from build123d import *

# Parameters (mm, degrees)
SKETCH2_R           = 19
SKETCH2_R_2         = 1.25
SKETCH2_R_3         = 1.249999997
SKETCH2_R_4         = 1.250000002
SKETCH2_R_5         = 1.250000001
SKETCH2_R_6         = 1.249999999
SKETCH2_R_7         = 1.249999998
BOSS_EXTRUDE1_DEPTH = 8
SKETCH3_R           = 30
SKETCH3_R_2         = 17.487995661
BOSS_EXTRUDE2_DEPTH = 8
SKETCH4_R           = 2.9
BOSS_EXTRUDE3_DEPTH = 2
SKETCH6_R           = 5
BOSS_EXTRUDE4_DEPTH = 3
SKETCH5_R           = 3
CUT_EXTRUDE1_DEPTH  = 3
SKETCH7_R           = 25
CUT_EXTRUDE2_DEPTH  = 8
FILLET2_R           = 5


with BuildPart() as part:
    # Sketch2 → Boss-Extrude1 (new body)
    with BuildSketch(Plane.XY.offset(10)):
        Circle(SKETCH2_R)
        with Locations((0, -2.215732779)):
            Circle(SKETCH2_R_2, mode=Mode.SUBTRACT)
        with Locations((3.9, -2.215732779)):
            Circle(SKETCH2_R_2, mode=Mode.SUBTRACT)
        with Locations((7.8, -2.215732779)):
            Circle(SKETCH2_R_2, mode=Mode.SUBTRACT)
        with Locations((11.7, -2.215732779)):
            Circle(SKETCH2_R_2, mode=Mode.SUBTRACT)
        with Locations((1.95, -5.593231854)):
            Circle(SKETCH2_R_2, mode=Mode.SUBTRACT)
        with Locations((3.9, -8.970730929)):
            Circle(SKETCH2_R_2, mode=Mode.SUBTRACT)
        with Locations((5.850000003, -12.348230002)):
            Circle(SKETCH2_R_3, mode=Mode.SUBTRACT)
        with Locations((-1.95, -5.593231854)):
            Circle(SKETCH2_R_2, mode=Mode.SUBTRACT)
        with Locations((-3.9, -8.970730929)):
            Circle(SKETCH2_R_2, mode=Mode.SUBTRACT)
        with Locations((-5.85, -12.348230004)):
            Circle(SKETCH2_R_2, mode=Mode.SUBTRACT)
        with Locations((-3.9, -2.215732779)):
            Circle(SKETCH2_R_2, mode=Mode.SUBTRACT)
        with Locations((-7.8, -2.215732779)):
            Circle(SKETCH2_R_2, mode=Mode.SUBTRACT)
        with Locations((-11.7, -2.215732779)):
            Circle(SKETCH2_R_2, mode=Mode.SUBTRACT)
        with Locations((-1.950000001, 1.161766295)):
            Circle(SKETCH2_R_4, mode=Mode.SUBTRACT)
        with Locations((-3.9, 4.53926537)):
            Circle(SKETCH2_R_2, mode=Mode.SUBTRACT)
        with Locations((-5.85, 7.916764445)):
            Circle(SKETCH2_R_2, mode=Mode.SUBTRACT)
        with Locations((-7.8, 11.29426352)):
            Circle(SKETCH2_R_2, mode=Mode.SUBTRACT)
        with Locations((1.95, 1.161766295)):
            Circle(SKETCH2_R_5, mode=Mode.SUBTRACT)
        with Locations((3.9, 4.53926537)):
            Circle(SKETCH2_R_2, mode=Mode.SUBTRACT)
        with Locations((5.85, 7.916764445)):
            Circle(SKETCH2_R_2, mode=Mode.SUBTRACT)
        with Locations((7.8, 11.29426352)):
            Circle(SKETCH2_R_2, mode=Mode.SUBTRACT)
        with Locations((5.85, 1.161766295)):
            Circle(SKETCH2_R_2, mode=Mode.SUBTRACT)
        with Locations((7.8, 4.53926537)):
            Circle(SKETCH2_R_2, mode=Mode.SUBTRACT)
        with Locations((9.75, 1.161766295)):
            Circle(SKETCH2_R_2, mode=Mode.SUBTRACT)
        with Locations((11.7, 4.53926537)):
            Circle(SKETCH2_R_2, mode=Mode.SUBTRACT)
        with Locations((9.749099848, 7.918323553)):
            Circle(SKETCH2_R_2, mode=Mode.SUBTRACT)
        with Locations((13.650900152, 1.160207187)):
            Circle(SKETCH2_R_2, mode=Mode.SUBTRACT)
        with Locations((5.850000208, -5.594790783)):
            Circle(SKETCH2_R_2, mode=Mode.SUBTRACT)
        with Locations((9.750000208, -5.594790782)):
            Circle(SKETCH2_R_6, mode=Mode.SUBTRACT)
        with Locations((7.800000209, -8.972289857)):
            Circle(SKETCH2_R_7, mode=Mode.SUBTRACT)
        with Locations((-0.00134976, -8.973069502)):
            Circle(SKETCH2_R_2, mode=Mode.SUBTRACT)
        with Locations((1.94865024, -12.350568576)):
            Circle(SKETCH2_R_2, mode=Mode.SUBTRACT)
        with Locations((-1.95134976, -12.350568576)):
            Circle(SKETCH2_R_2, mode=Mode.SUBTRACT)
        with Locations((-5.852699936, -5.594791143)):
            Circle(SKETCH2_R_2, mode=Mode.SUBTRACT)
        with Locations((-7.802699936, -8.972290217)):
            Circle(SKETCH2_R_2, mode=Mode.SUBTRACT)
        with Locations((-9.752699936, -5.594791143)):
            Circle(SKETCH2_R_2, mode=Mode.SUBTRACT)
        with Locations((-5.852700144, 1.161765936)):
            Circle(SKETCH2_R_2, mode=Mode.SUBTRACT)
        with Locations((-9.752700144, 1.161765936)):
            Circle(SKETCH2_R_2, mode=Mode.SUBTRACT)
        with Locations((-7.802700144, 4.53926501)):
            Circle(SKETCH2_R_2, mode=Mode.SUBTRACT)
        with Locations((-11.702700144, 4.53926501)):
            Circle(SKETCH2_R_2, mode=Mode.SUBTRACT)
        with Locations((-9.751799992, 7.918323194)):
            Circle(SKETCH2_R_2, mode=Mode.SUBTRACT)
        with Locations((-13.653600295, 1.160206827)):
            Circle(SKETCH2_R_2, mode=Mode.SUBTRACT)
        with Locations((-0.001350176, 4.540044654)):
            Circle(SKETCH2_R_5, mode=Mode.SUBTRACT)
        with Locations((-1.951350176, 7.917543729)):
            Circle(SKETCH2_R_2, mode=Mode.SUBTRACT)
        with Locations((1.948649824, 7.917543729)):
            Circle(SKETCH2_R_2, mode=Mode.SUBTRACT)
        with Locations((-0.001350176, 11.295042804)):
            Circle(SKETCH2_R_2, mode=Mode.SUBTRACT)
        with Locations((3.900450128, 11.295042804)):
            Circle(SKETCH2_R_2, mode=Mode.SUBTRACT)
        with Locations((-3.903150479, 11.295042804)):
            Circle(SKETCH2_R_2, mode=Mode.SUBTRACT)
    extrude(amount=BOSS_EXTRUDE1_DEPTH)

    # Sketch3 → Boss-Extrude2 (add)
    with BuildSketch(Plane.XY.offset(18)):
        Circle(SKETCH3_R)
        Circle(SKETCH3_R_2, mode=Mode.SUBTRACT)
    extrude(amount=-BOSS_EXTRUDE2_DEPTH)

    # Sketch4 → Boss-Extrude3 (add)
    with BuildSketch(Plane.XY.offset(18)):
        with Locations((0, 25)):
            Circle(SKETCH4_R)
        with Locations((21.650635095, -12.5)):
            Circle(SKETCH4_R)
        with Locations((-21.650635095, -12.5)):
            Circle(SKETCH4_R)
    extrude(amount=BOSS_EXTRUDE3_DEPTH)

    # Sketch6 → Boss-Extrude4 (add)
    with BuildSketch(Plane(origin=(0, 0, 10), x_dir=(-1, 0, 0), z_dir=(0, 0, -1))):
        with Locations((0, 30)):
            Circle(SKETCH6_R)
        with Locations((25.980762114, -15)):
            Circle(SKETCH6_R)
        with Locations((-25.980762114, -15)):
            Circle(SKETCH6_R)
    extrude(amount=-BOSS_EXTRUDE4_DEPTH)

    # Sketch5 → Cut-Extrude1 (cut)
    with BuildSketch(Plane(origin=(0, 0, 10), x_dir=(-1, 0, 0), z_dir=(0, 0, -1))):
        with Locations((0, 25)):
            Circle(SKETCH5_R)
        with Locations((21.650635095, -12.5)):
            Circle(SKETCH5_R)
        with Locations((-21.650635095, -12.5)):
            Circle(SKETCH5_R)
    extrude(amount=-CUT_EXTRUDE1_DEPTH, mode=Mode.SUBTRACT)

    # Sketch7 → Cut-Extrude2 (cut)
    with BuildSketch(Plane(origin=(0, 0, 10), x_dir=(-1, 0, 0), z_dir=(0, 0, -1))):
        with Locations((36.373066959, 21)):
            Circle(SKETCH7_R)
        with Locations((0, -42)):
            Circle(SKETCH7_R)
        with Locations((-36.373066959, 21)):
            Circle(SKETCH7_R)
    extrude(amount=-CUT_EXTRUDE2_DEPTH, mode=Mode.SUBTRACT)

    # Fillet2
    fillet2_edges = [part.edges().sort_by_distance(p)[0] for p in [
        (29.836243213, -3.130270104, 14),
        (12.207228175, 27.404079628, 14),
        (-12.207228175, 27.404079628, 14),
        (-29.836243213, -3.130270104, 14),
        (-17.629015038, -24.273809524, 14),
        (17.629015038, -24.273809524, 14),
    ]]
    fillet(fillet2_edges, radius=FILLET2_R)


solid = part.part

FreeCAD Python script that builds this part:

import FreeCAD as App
import Part
import Sketcher
from FreeCAD import Vector
Q = App.Units.Quantity


def edges_at(feature, points):
    """Names of the edges that pass closest to the given points."""
    edges = feature.Shape.Edges
    near = lambda p: min(range(len(edges)), key=lambda i: edges[i].distToShape(Part.Vertex(*p))[0])
    return sorted({f"Edge{near(p) + 1}" for p in points})

doc = App.newDocument("Part")
body = doc.addObject("PartDesign::Body", "Body")

# Sketch on XY plane
sketch1 = doc.addObject("Sketcher::SketchObject", "Sketch")
body.addObject(sketch1)
sketch1.AttachmentSupport = (doc.XY_Plane, [""])
sketch1.MapMode = "FlatFace"
sketch1.AttachmentOffset = App.Placement(Vector(0, 0, 10), App.Rotation())
sketch1.addGeometry(Part.Circle(Vector(0, 0, 0), Vector(0, 0, 1), 19), False)
sketch1.addGeometry(Part.Circle(Vector(-7.8, -9, 0), Vector(0, 0, 1), 1.2), False)
sketch1.addGeometry(Part.Circle(Vector(-5.8, -12.3, 0), Vector(0, 0, 1), 1.2), False)
sketch1.addGeometry(Part.Circle(Vector(-2, -12.4, 0), Vector(0, 0, 1), 1.2), False)
sketch1.addGeometry(Part.Circle(Vector(-3.9, -9, 0), Vector(0, 0, 1), 1.2), False)
sketch1.addGeometry(Part.Circle(Vector(-9.8, -5.6, 0), Vector(0, 0, 1), 1.2), False)
sketch1.addGeometry(Part.Circle(Vector(-11.7, -2.2, 0), Vector(0, 0, 1), 1.2), False)
sketch1.addGeometry(Part.Circle(Vector(-7.8, -2.2, 0), Vector(0, 0, 1), 1.2), False)
sketch1.addGeometry(Part.Circle(Vector(-5.9, -5.6, 0), Vector(0, 0, 1), 1.2), False)
sketch1.addGeometry(Part.Circle(Vector(-1.9, -5.6, 0), Vector(0, 0, 1), 1.2), False)
sketch1.addGeometry(Part.Circle(Vector(-3.9, -2.2, 0), Vector(0, 0, 1), 1.2), False)
sketch1.addGeometry(Part.Circle(Vector(1.9, -12.4, 0), Vector(0, 0, 1), 1.2), False)
sketch1.addGeometry(Part.Circle(Vector(5.9, -12.3, 0), Vector(0, 0, 1), 1.2), False)
sketch1.addGeometry(Part.Circle(Vector(0, -9, 0), Vector(0, 0, 1), 1.2), False)
sketch1.addGeometry(Part.Circle(Vector(3.9, -9, 0), Vector(0, 0, 1), 1.2), False)
sketch1.addGeometry(Part.Circle(Vector(7.8, -9, 0), Vector(0, 0, 1), 1.2), False)
sketch1.addGeometry(Part.Circle(Vector(1.9, -5.6, 0), Vector(0, 0, 1), 1.2), False)
sketch1.addGeometry(Part.Circle(Vector(5.9, -5.6, 0), Vector(0, 0, 1), 1.2), False)
sketch1.addGeometry(Part.Circle(Vector(0, -2.2, 0), Vector(0, 0, 1), 1.2), False)
sketch1.addGeometry(Part.Circle(Vector(3.9, -2.2, 0), Vector(0, 0, 1), 1.2), False)
sketch1.addGeometry(Part.Circle(Vector(9.8, -5.6, 0), Vector(0, 0, 1), 1.2), False)
sketch1.addGeometry(Part.Circle(Vector(7.8, -2.2, 0), Vector(0, 0, 1), 1.2), False)
sketch1.addGeometry(Part.Circle(Vector(11.7, -2.2, 0), Vector(0, 0, 1), 1.2), False)
sketch1.addGeometry(Part.Circle(Vector(-13.7, 1.2, 0), Vector(0, 0, 1), 1.2), False)
sketch1.addGeometry(Part.Circle(Vector(-9.8, 1.2, 0), Vector(0, 0, 1), 1.2), False)
sketch1.addGeometry(Part.Circle(Vector(-11.7, 4.5, 0), Vector(0, 0, 1), 1.2), False)
sketch1.addGeometry(Part.Circle(Vector(-7.8, 4.5, 0), Vector(0, 0, 1), 1.2), False)
sketch1.addGeometry(Part.Circle(Vector(-5.9, 1.2, 0), Vector(0, 0, 1), 1.2), False)
sketch1.addGeometry(Part.Circle(Vector(-2, 1.2, 0), Vector(0, 0, 1), 1.3), False)
sketch1.addGeometry(Part.Circle(Vector(-3.9, 4.5, 0), Vector(0, 0, 1), 1.2), False)
sketch1.addGeometry(Part.Circle(Vector(0, 4.5, 0), Vector(0, 0, 1), 1.3), False)
sketch1.addGeometry(Part.Circle(Vector(-9.8, 7.9, 0), Vector(0, 0, 1), 1.2), False)
sketch1.addGeometry(Part.Circle(Vector(-7.8, 11.3, 0), Vector(0, 0, 1), 1.2), False)
sketch1.addGeometry(Part.Circle(Vector(-5.8, 7.9, 0), Vector(0, 0, 1), 1.2), False)
sketch1.addGeometry(Part.Circle(Vector(-2, 7.9, 0), Vector(0, 0, 1), 1.2), False)
sketch1.addGeometry(Part.Circle(Vector(-3.9, 11.3, 0), Vector(0, 0, 1), 1.2), False)
sketch1.addGeometry(Part.Circle(Vector(0, 11.3, 0), Vector(0, 0, 1), 1.2), False)
sketch1.addGeometry(Part.Circle(Vector(1.9, 1.2, 0), Vector(0, 0, 1), 1.3), False)
sketch1.addGeometry(Part.Circle(Vector(5.8, 1.2, 0), Vector(0, 0, 1), 1.2), False)
sketch1.addGeometry(Part.Circle(Vector(3.9, 4.5, 0), Vector(0, 0, 1), 1.2), False)
sketch1.addGeometry(Part.Circle(Vector(9.8, 1.2, 0), Vector(0, 0, 1), 1.2), False)
sketch1.addGeometry(Part.Circle(Vector(13.7, 1.2, 0), Vector(0, 0, 1), 1.2), False)
sketch1.addGeometry(Part.Circle(Vector(7.8, 4.5, 0), Vector(0, 0, 1), 1.2), False)
sketch1.addGeometry(Part.Circle(Vector(11.7, 4.5, 0), Vector(0, 0, 1), 1.2), False)
sketch1.addGeometry(Part.Circle(Vector(1.9, 7.9, 0), Vector(0, 0, 1), 1.2), False)
sketch1.addGeometry(Part.Circle(Vector(5.8, 7.9, 0), Vector(0, 0, 1), 1.2), False)
sketch1.addGeometry(Part.Circle(Vector(3.9, 11.3, 0), Vector(0, 0, 1), 1.2), False)
sketch1.addGeometry(Part.Circle(Vector(9.7, 7.9, 0), Vector(0, 0, 1), 1.2), False)
sketch1.addGeometry(Part.Circle(Vector(7.8, 11.3, 0), Vector(0, 0, 1), 1.2), False)
sketch1.addConstraint(Sketcher.Constraint("Coincident", 0, 3, -1, 1))
sketch1.addConstraint(Sketcher.Constraint("Equal", 1, 2))
sketch1.addConstraint(Sketcher.Constraint("Equal", 2, 3))
sketch1.addConstraint(Sketcher.Constraint("Equal", 3, 4))
sketch1.addConstraint(Sketcher.Constraint("Equal", 4, 5))
sketch1.addConstraint(Sketcher.Constraint("Equal", 5, 6))
sketch1.addConstraint(Sketcher.Constraint("Equal", 6, 7))
sketch1.addConstraint(Sketcher.Constraint("Equal", 7, 8))
sketch1.addConstraint(Sketcher.Constraint("Equal", 8, 9))
sketch1.addConstraint(Sketcher.Constraint("Equal", 9, 10))
sketch1.addConstraint(Sketcher.Constraint("Equal", 10, 11))
sketch1.addConstraint(Sketcher.Constraint("Equal", 11, 12))
sketch1.addConstraint(Sketcher.Constraint("Equal", 12, 13))
sketch1.addConstraint(Sketcher.Constraint("Equal", 13, 14))
sketch1.addConstraint(Sketcher.Constraint("Equal", 14, 15))
sketch1.addConstraint(Sketcher.Constraint("Equal", 15, 16))
sketch1.addConstraint(Sketcher.Constraint("Equal", 16, 17))
sketch1.addConstraint(Sketcher.Constraint("Equal", 17, 18))
sketch1.addConstraint(Sketcher.Constraint("Equal", 18, 19))
sketch1.addConstraint(Sketcher.Constraint("Equal", 19, 20))
sketch1.addConstraint(Sketcher.Constraint("Equal", 20, 21))
sketch1.addConstraint(Sketcher.Constraint("Equal", 21, 22))
sketch1.addConstraint(Sketcher.Constraint("Equal", 22, 23))
sketch1.addConstraint(Sketcher.Constraint("Equal", 23, 24))
sketch1.addConstraint(Sketcher.Constraint("Equal", 24, 25))
sketch1.addConstraint(Sketcher.Constraint("Equal", 25, 26))
sketch1.addConstraint(Sketcher.Constraint("Equal", 26, 27))
sketch1.addConstraint(Sketcher.Constraint("Equal", 27, 28))
sketch1.addConstraint(Sketcher.Constraint("Equal", 28, 29))
sketch1.addConstraint(Sketcher.Constraint("Equal", 29, 30))
sketch1.addConstraint(Sketcher.Constraint("Equal", 30, 31))
sketch1.addConstraint(Sketcher.Constraint("Equal", 31, 32))
sketch1.addConstraint(Sketcher.Constraint("Equal", 32, 33))
sketch1.addConstraint(Sketcher.Constraint("Equal", 33, 34))
sketch1.addConstraint(Sketcher.Constraint("Equal", 34, 35))
sketch1.addConstraint(Sketcher.Constraint("Equal", 35, 36))
sketch1.addConstraint(Sketcher.Constraint("Equal", 36, 37))
sketch1.addConstraint(Sketcher.Constraint("Equal", 37, 38))
sketch1.addConstraint(Sketcher.Constraint("Equal", 38, 39))
sketch1.addConstraint(Sketcher.Constraint("Equal", 39, 40))
sketch1.addConstraint(Sketcher.Constraint("Equal", 40, 41))
sketch1.addConstraint(Sketcher.Constraint("Equal", 41, 42))
sketch1.addConstraint(Sketcher.Constraint("Equal", 42, 43))
sketch1.addConstraint(Sketcher.Constraint("Equal", 43, 44))
sketch1.addConstraint(Sketcher.Constraint("Equal", 44, 45))
sketch1.addConstraint(Sketcher.Constraint("Equal", 45, 46))
sketch1.addConstraint(Sketcher.Constraint("Equal", 46, 47))
sketch1.addConstraint(Sketcher.Constraint("Equal", 47, 48))
sketch1.addConstraint(Sketcher.Constraint("Symmetric", 2, 3, 12, 3, -2))
sketch1.addConstraint(Sketcher.Constraint("Symmetric", 4, 3, 14, 3, -2))
sketch1.addConstraint(Sketcher.Constraint("Symmetric", 9, 3, 16, 3, -2))
sketch1.addConstraint(Sketcher.Constraint("Symmetric", 10, 3, 19, 3, -2))
sketch1.addConstraint(Sketcher.Constraint("Symmetric", 7, 3, 21, 3, -2))
sketch1.addConstraint(Sketcher.Constraint("Symmetric", 6, 3, 22, 3, -2))
sketch1.addConstraint(Sketcher.Constraint("Symmetric", 28, 3, 37, 3, -2))
sketch1.addConstraint(Sketcher.Constraint("Symmetric", 29, 3, 39, 3, -2))
sketch1.addConstraint(Sketcher.Constraint("Symmetric", 33, 3, 45, 3, -2))
sketch1.addConstraint(Sketcher.Constraint("Symmetric", 32, 3, 48, 3, -2))
sketch1.addConstraint(Sketcher.Constraint("PointOnObject", 18, 3, -2))
sketch1.addConstraint(Sketcher.Constraint("Horizontal", 6, 3, 7, 3))
sketch1.addConstraint(Sketcher.Constraint("Horizontal", 5, 3, 8, 3))
sketch1.addConstraint(Sketcher.Constraint("Horizontal", 7, 3, 10, 3))
sketch1.addConstraint(Sketcher.Constraint("Horizontal", 3, 3, 11, 3))
sketch1.addConstraint(Sketcher.Constraint("Horizontal", 1, 3, 15, 3))
sketch1.addConstraint(Sketcher.Constraint("Horizontal", 8, 3, 17, 3))
sketch1.addConstraint(Sketcher.Constraint("Horizontal", 10, 3, 18, 3))
sketch1.addConstraint(Sketcher.Constraint("Horizontal", 17, 3, 20, 3))
sketch1.addConstraint(Sketcher.Constraint("Horizontal", 25, 3, 26, 3))
sketch1.addConstraint(Sketcher.Constraint("Horizontal", 24, 3, 27, 3))
sketch1.addConstraint(Sketcher.Constraint("Horizontal", 27, 3, 28, 3))
sketch1.addConstraint(Sketcher.Constraint("Horizontal", 26, 3, 29, 3))
sketch1.addConstraint(Sketcher.Constraint("Horizontal", 35, 3, 36, 3))
sketch1.addConstraint(Sketcher.Constraint("Horizontal", 37, 3, 38, 3))
sketch1.addConstraint(Sketcher.Constraint("Horizontal", 38, 3, 40, 3))
sketch1.addConstraint(Sketcher.Constraint("Horizontal", 23, 3, 41, 3))
sketch1.addConstraint(Sketcher.Constraint("Horizontal", 39, 3, 42, 3))
sketch1.addConstraint(Sketcher.Constraint("Horizontal", 42, 3, 43, 3))
sketch1.addConstraint(Sketcher.Constraint("Horizontal", 34, 3, 44, 3))
sketch1.addConstraint(Sketcher.Constraint("Horizontal", 36, 3, 46, 3))
sketch1.addConstraint(Sketcher.Constraint("Horizontal", 31, 3, 47, 3))
sketch1.addConstraint(Sketcher.Constraint("Vertical", 4, 3, 10, 3))
sketch1.addConstraint(Sketcher.Constraint("Vertical", 12, 3, 17, 3))
sketch1.addConstraint(Sketcher.Constraint("Vertical", 15, 3, 21, 3))
sketch1.addConstraint(Sketcher.Constraint("Vertical", 5, 3, 24, 3))
sketch1.addConstraint(Sketcher.Constraint("Vertical", 1, 3, 26, 3))
sketch1.addConstraint(Sketcher.Constraint("Vertical", 8, 3, 27, 3))
sketch1.addConstraint(Sketcher.Constraint("Vertical", 9, 3, 28, 3))
sketch1.addConstraint(Sketcher.Constraint("Vertical", 10, 3, 29, 3))
sketch1.addConstraint(Sketcher.Constraint("Vertical", 13, 3, 30, 3))
sketch1.addConstraint(Sketcher.Constraint("Vertical", 7, 3, 32, 3))
sketch1.addConstraint(Sketcher.Constraint("Vertical", 2, 3, 33, 3))
sketch1.addConstraint(Sketcher.Constraint("Vertical", 3, 3, 34, 3))
sketch1.addConstraint(Sketcher.Constraint("Vertical", 30, 3, 36, 3))
sketch1.addConstraint(Sketcher.Constraint("Vertical", 17, 3, 38, 3))
sketch1.addConstraint(Sketcher.Constraint("Vertical", 20, 3, 40, 3))
sketch1.addConstraint(Sketcher.Constraint("Vertical", 21, 3, 42, 3))
sketch1.addConstraint(Sketcher.Constraint("Vertical", 22, 3, 43, 3))
sketch1.addConstraint(Sketcher.Constraint("Vertical", 11, 3, 44, 3))
sketch1.addConstraint(Sketcher.Constraint("Diameter", 0, Q("38 mm")))
sketch1.addConstraint(Sketcher.Constraint("Diameter", 1, Q("2.5 mm")))
sketch1.addConstraint(Sketcher.Constraint("DistanceX", 4, 3, -1, 1, Q("3.9 mm")))
sketch1.addConstraint(Sketcher.Constraint("DistanceX", 6, 3, -1, 1, Q("11.7 mm")))
sketch1.addConstraint(Sketcher.Constraint("DistanceX", 7, 3, -1, 1, Q("7.8 mm")))
sketch1.addConstraint(Sketcher.Constraint("DistanceX", 5, 3, 8, 3, Q("3.9 mm")))
sketch1.addConstraint(Sketcher.Constraint("DistanceX", 3, 3, 11, 3, Q("3.9 mm")))
sketch1.addConstraint(Sketcher.Constraint("DistanceX", 9, 3, 12, 3, Q("7.8 mm")))
sketch1.addConstraint(Sketcher.Constraint("DistanceX", 2, 3, 12, 3, Q("11.7 mm")))
sketch1.addConstraint(Sketcher.Constraint("DistanceX", 17, 3, 20, 3, Q("3.9 mm")))
sketch1.addConstraint(Sketcher.Constraint("DistanceX", 25, 3, 26, 3, Q("3.9 mm")))
sketch1.addConstraint(Sketcher.Constraint("DistanceX", 5, 3, 1, 3, Q("1.95 mm")))
sketch1.addConstraint(Sketcher.Constraint("DistanceX", 3, 3, 13, 3, Q("1.95 mm")))
sketch1.addConstraint(Sketcher.Constraint("DistanceY", 4, 3, 6, 3, Q("6.754998 mm")))
sketch1.addConstraint(Sketcher.Constraint("DistanceY", 12, 3, 9, 3, Q("6.754998 mm")))
sketch1.addConstraint(Sketcher.Constraint("DistanceY", 10, 3, 29, 3, Q("6.754998 mm")))
sketch1.addConstraint(Sketcher.Constraint("DistanceY", 26, 3, 32, 3, Q("6.754999 mm")))
sketch1.addConstraint(Sketcher.Constraint("DistanceY", 30, 3, 36, 3, Q("6.754998 mm")))
sketch1.addConstraint(Sketcher.Constraint("DistanceY", 38, 3, 45, 3, Q("6.754998 mm")))
sketch1.addConstraint(Sketcher.Constraint("DistanceX", 1, 3, -1, 1, Q("7.8027 mm")))
sketch1.addConstraint(Sketcher.Constraint("DistanceX", 23, 3, -1, 1, Q("13.6536 mm")))
sketch1.addConstraint(Sketcher.Constraint("DistanceX", 31, 3, -1, 1, Q("9.7518 mm")))
sketch1.addConstraint(Sketcher.Constraint("DistanceX", -1, 1, 41, 3, Q("13.6509 mm")))
sketch1.addConstraint(Sketcher.Constraint("DistanceX", -1, 1, 47, 3, Q("9.7491 mm")))
sketch1.addConstraint(Sketcher.Constraint("DistanceY", 2, 3, 4, 3, Q("3.377499 mm")))
sketch1.addConstraint(Sketcher.Constraint("DistanceY", 1, 3, 5, 3, Q("3.377499 mm")))
sketch1.addConstraint(Sketcher.Constraint("DistanceY", 3, 3, 13, 3, Q("3.377499 mm")))
sketch1.addConstraint(Sketcher.Constraint("DistanceY", 6, 3, 24, 3, Q("3.377499 mm")))
sketch1.addConstraint(Sketcher.Constraint("DistanceY", 30, 3, 34, 3, Q("3.377499 mm")))
sketch1.addConstraint(Sketcher.Constraint("DistanceX", 35, 3, 34, 3, Q("1.9518 mm")))
sketch1.addConstraint(Sketcher.Constraint("DistanceX", 44, 3, 46, 3, Q("1.9518 mm")))
sketch1.addConstraint(Sketcher.Constraint("DistanceY", 1, 3, -1, 1, Q("8.97229 mm")))
sketch1.addConstraint(Sketcher.Constraint("DistanceY", 2, 3, -1, 1, Q("12.34823 mm")))
sketch1.addConstraint(Sketcher.Constraint("DistanceX", 3, 3, -1, 1, Q("1.95135 mm")))
sketch1.addConstraint(Sketcher.Constraint("DistanceY", 3, 3, -1, 1, Q("12.350569 mm")))
sketch1.addConstraint(Sketcher.Constraint("DistanceY", 6, 3, 23, 3, Q("3.37594 mm")))
sketch1.addConstraint(Sketcher.Constraint("DistanceY", 29, 3, 30, 3, Q("0.000779 mm")))
sketch1.addConstraint(Sketcher.Constraint("DistanceY", 26, 3, 31, 3, Q("3.379058 mm")))
pad1 = doc.addObject("PartDesign::Pad", "Pad")
body.addObject(pad1)
pad1.Profile = sketch1
pad1.Length = 8

# Sketch on XY plane
sketch2 = doc.addObject("Sketcher::SketchObject", "Sketch001")
body.addObject(sketch2)
sketch2.AttachmentSupport = (doc.XY_Plane, [""])
sketch2.MapMode = "FlatFace"
sketch2.AttachmentOffset = App.Placement(Vector(0, 0, 18), App.Rotation())
sketch2.addGeometry(Part.Circle(Vector(0, 0, 0), Vector(0, 0, 1), 30), False)
sketch2.addGeometry(Part.Circle(Vector(0, 0, 0), Vector(0, 0, 1), 17), False)
sketch2.addConstraint(Sketcher.Constraint("Coincident", 0, 3, -1, 1))
sketch2.addConstraint(Sketcher.Constraint("Coincident", 1, 3, -1, 1))
sketch2.addConstraint(Sketcher.Constraint("Diameter", 0, Q("60 mm")))
sketch2.addConstraint(Sketcher.Constraint("Diameter", 1, Q("34.975991 mm")))
pad2 = doc.addObject("PartDesign::Pad", "Pad001")
body.addObject(pad2)
pad2.Profile = sketch2
pad2.Length = 8
pad2.Reversed = True

# Sketch on XY plane
sketch3 = doc.addObject("Sketcher::SketchObject", "Sketch002")
body.addObject(sketch3)
sketch3.AttachmentSupport = (doc.XY_Plane, [""])
sketch3.MapMode = "FlatFace"
sketch3.AttachmentOffset = App.Placement(Vector(0, 0, 18), App.Rotation())
sketch3.addGeometry(Part.Circle(Vector(0, 25, 0), Vector(0, 0, 1), 2.9), False)
sketch3.addGeometry(Part.Circle(Vector(21.7, -12.5, 0), Vector(0, 0, 1), 2.9), False)
sketch3.addGeometry(Part.Circle(Vector(-21.7, -12.5, 0), Vector(0, 0, 1), 2.9), False)
sketch3.addConstraint(Sketcher.Constraint("Equal", 0, 1))
sketch3.addConstraint(Sketcher.Constraint("Equal", 1, 2))
sketch3.addConstraint(Sketcher.Constraint("Symmetric", 1, 3, 2, 3, -2))
sketch3.addConstraint(Sketcher.Constraint("PointOnObject", 0, 3, -2))
sketch3.addConstraint(Sketcher.Constraint("Diameter", 0, Q("5.8 mm")))
sketch3.addConstraint(Sketcher.Constraint("DistanceY", -1, 1, 0, 3, Q("25 mm")))
sketch3.addConstraint(Sketcher.Constraint("DistanceY", 1, 3, -1, 1, Q("12.5 mm")))
sketch3.addConstraint(Sketcher.Constraint("DistanceX", 2, 3, 1, 3, Q("43.30127 mm")))
pad3 = doc.addObject("PartDesign::Pad", "Pad002")
body.addObject(pad3)
pad3.Profile = sketch3
pad3.Length = 2

# Sketch on XY plane
sketch4 = doc.addObject("Sketcher::SketchObject", "Sketch003")
body.addObject(sketch4)
sketch4.AttachmentSupport = (doc.XY_Plane, [""])
sketch4.MapMode = "FlatFace"
sketch4.AttachmentOffset = App.Placement(Vector(0, 0, 10), App.Rotation())
sketch4.addGeometry(Part.Circle(Vector(0, 30, 0), Vector(0, 0, 1), 5), False)
sketch4.addGeometry(Part.Circle(Vector(-26, -15, 0), Vector(0, 0, 1), 5), False)
sketch4.addGeometry(Part.Circle(Vector(26, -15, 0), Vector(0, 0, 1), 5), False)
sketch4.addConstraint(Sketcher.Constraint("Equal", 0, 1))
sketch4.addConstraint(Sketcher.Constraint("Equal", 1, 2))
sketch4.addConstraint(Sketcher.Constraint("Symmetric", 1, 3, 2, 3, -2))
sketch4.addConstraint(Sketcher.Constraint("PointOnObject", 0, 3, -2))
sketch4.addConstraint(Sketcher.Constraint("Diameter", 0, Q("10 mm")))
sketch4.addConstraint(Sketcher.Constraint("DistanceY", -1, 1, 0, 3, Q("30 mm")))
sketch4.addConstraint(Sketcher.Constraint("DistanceY", 1, 3, -1, 1, Q("15 mm")))
sketch4.addConstraint(Sketcher.Constraint("DistanceX", 1, 3, -1, 1, Q("25.980762 mm")))
pad4 = doc.addObject("PartDesign::Pad", "Pad003")
body.addObject(pad4)
pad4.Profile = sketch4
pad4.Length = 3

# Sketch on XY plane
sketch5 = doc.addObject("Sketcher::SketchObject", "Sketch004")
body.addObject(sketch5)
sketch5.AttachmentSupport = (doc.XY_Plane, [""])
sketch5.MapMode = "FlatFace"
sketch5.AttachmentOffset = App.Placement(Vector(0, 0, 10), App.Rotation())
sketch5.addGeometry(Part.Circle(Vector(0, 25, 0), Vector(0, 0, 1), 3), False)
sketch5.addGeometry(Part.Circle(Vector(-21.7, -12.5, 0), Vector(0, 0, 1), 3), False)
sketch5.addGeometry(Part.Circle(Vector(21.7, -12.5, 0), Vector(0, 0, 1), 3), False)
sketch5.addConstraint(Sketcher.Constraint("Equal", 0, 1))
sketch5.addConstraint(Sketcher.Constraint("Equal", 1, 2))
sketch5.addConstraint(Sketcher.Constraint("Symmetric", 1, 3, 2, 3, -2))
sketch5.addConstraint(Sketcher.Constraint("PointOnObject", 0, 3, -2))
sketch5.addConstraint(Sketcher.Constraint("Diameter", 0, Q("6 mm")))
sketch5.addConstraint(Sketcher.Constraint("DistanceY", -1, 1, 0, 3, Q("25 mm")))
sketch5.addConstraint(Sketcher.Constraint("DistanceY", 1, 3, -1, 1, Q("12.5 mm")))
sketch5.addConstraint(Sketcher.Constraint("DistanceX", 1, 3, 2, 3, Q("43.30127 mm")))
pocket1 = doc.addObject("PartDesign::Pocket", "Pocket")
body.addObject(pocket1)
pocket1.Profile = sketch5
pocket1.Length = 3
pocket1.Reversed = True

# Sketch on XY plane
sketch6 = doc.addObject("Sketcher::SketchObject", "Sketch005")
body.addObject(sketch6)
sketch6.AttachmentSupport = (doc.XY_Plane, [""])
sketch6.MapMode = "FlatFace"
sketch6.AttachmentOffset = App.Placement(Vector(0, 0, 10), App.Rotation())
sketch6.addGeometry(Part.Circle(Vector(-36, 21, 0), Vector(0, 0, 1), 25), False)
sketch6.addGeometry(Part.Circle(Vector(0, -42, 0), Vector(0, 0, 1), 25), False)
sketch6.addGeometry(Part.Circle(Vector(36, 21, 0), Vector(0, 0, 1), 25), False)
sketch6.addConstraint(Sketcher.Constraint("Equal", 0, 1))
sketch6.addConstraint(Sketcher.Constraint("Equal", 1, 2))
sketch6.addConstraint(Sketcher.Constraint("Symmetric", 0, 3, 2, 3, -2))
sketch6.addConstraint(Sketcher.Constraint("PointOnObject", 1, 3, -2))
sketch6.addConstraint(Sketcher.Constraint("Diameter", 0, Q("50 mm")))
sketch6.addConstraint(Sketcher.Constraint("DistanceY", -1, 1, 0, 3, Q("21 mm")))
sketch6.addConstraint(Sketcher.Constraint("DistanceY", 1, 3, -1, 1, Q("42 mm")))
sketch6.addConstraint(Sketcher.Constraint("DistanceX", 0, 3, -1, 1, Q("36.373067 mm")))
pocket2 = doc.addObject("PartDesign::Pocket", "Pocket001")
body.addObject(pocket2)
pocket2.Profile = sketch6
pocket2.Length = 8
pocket2.Reversed = True
doc.recompute()

fillet = doc.addObject("PartDesign::Fillet", "Fillet")
body.addObject(fillet)
fillet.Base = (pocket2, edges_at(pocket2, [
    (29.836, -3.13, 14),
    (12.207, 27.404, 14),
    (-12.207, 27.404, 14),
    (-29.836, -3.13, 14),
    (-17.629, -24.274, 14),
    (17.629, -24.274, 14),
]))
fillet.Radius = 5

doc.recompute()
